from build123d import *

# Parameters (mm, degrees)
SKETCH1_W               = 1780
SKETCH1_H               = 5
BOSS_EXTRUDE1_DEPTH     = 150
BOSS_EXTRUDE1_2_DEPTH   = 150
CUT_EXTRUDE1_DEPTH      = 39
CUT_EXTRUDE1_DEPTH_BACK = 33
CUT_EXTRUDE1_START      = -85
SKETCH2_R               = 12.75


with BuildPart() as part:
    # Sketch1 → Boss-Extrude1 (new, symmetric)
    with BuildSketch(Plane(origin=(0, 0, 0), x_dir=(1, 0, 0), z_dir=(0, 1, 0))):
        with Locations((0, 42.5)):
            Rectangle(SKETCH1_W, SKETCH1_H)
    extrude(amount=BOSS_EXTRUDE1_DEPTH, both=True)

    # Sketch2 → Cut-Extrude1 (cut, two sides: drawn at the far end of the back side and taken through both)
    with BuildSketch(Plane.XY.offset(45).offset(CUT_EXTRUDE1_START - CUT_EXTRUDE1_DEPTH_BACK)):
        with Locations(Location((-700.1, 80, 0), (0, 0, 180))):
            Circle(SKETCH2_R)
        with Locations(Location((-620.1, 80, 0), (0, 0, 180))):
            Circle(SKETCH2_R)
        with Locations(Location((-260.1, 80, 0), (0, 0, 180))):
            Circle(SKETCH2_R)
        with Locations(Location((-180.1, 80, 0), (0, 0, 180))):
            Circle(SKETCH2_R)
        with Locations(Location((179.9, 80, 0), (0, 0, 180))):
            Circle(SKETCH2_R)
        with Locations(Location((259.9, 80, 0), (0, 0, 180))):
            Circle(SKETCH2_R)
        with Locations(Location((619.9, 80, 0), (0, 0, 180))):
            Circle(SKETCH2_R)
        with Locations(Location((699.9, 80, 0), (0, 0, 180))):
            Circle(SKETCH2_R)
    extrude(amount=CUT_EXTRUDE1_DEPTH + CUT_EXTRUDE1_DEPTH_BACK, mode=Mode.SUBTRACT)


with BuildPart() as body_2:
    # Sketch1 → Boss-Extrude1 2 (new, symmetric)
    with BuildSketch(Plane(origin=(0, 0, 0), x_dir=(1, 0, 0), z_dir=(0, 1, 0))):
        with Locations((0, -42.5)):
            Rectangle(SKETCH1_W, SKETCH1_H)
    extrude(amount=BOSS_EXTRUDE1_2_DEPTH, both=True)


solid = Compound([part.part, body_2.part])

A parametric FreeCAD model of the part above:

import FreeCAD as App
import Part
import Sketcher
Q = App.Units.Quantity

doc = App.newDocument("Part")
params = doc.addObject("Spreadsheet::Sheet", "Params")
for row, (alias, value) in enumerate([
    ("sketch1_width", "1780 mm"),
    ("sketch1_height", "5 mm"),
    ("pad1_length", "300 mm"),
    ("sketch2_diameter", "25.5 mm"),
    ("sketch3_width", "1780 mm"),
    ("sketch3_height", "5 mm"),
    ("pad2_length", "300 mm"),
], start=1):
    params.set(f"A{row}", alias)
    params.set(f"B{row}", "=" + value)
    params.setAlias(f"B{row}", alias)

body = doc.addObject("PartDesign::Body", "Body")

# Sketch on XZ plane
sketch1 = body.newObject("Sketcher::SketchObject", "Sketch")
sketch1.AttachmentSupport = (doc.getObject("XZ_Plane"), [""])
sketch1.MapMode = "FlatFace"
sketch1.addGeometry([
    Part.LineSegment(App.Vector(-890, -45, 0), App.Vector(-890, -40, 0)),
    Part.LineSegment(App.Vector(-890, -40, 0), App.Vector(890, -40, 0)),
    Part.LineSegment(App.Vector(890, -40, 0), App.Vector(890, -45, 0)),
    Part.LineSegment(App.Vector(890, -45, 0), App.Vector(-890, -45, 0)),
], False)
sketch1.addConstraint([
    Sketcher.Constraint("Coincident", 0, 2, 1, 1),
    Sketcher.Constraint("Coincident", 1, 2, 2, 1),
    Sketcher.Constraint("Coincident", 2, 2, 3, 1),
    Sketcher.Constraint("Coincident", 3, 2, 0, 1),
    Sketcher.Constraint("Vertical", 0),
    Sketcher.Constraint("Horizontal", 1),
    Sketcher.Constraint("Vertical", 2),
    Sketcher.Constraint("Horizontal", 3),
    Sketcher.Constraint("DistanceX", 1, 1, 1, 2, Q("1780 mm")),
    Sketcher.Constraint("DistanceY", 0, 1, 0, 2, Q("5 mm")),
    Sketcher.Constraint("DistanceX", 0, 2, -1, 1, Q("890 mm")),
    Sketcher.Constraint("DistanceY", 0, 2, -1, 1, Q("40 mm")),
])
sketch1.setExpression("Constraints[8]", "Params.sketch1_width")
sketch1.setExpression("Constraints[9]", "Params.sketch1_height")
pad1 = body.newObject("PartDesign::Pad", "Pad")
pad1.Profile = sketch1
pad1.setExpression("Length", "Params.pad1_length")
pad1.Midplane = True

# Sketch on XY plane
sketch2 = body.newObject("Sketcher::SketchObject", "Sketch001")
sketch2.AttachmentSupport = (doc.getObject("XY_Plane"), [""])
sketch2.MapMode = "FlatFace"
sketch2.AttachmentOffset = App.Placement(App.Vector(0, 0, -40), App.Rotation())
sketch2.addGeometry([
    Part.Circle(App.Vector(-700, 80, 0), App.Vector(0, 0, 1), 13),  # 0
    Part.Circle(App.Vector(-620, 80, 0), App.Vector(0, 0, 1), 13),  # 1
    Part.Circle(App.Vector(-260, 80, 0), App.Vector(0, 0, 1), 13),  # 2
    Part.Circle(App.Vector(-180, 80, 0), App.Vector(0, 0, 1), 13),  # 3
    Part.Circle(App.Vector(180, 80, 0), App.Vector(0, 0, 1), 13),  # 4
    Part.Circle(App.Vector(260, 80, 0), App.Vector(0, 0, 1), 13),  # 5
    Part.Circle(App.Vector(620, 80, 0), App.Vector(0, 0, 1), 13),  # 6
    Part.Circle(App.Vector(700, 80, 0), App.Vector(0, 0, 1), 13),  # 7
], False)
sketch2.addConstraint([
    Sketcher.Constraint("Equal", 0, 1),
    Sketcher.Constraint("Equal", 1, 2),
    Sketcher.Constraint("Equal", 2, 3),
    Sketcher.Constraint("Equal", 3, 4),
    Sketcher.Constraint("Equal", 4, 5),
    Sketcher.Constraint("Equal", 5, 6),
    Sketcher.Constraint("Equal", 6, 7),
    Sketcher.Constraint("Horizontal", 0, 3, 1, 3),
    Sketcher.Constraint("Horizontal", 1, 3, 2, 3),
    Sketcher.Constraint("Horizontal", 2, 3, 3, 3),
    Sketcher.Constraint("Horizontal", 3, 3, 4, 3),
    Sketcher.Constraint("Horizontal", 4, 3, 5, 3),
    Sketcher.Constraint("Horizontal", 5, 3, 6, 3),
    Sketcher.Constraint("Horizontal", 6, 3, 7, 3),
    Sketcher.Constraint("Diameter", 0, Q("25.5 mm")),
    Sketcher.Constraint("DistanceY", -1, 1, 0, 3, Q("80 mm")),
    Sketcher.Constraint("DistanceX", 0, 3, 1, 3, Q("80 mm")),
    Sketcher.Constraint("DistanceX", 1, 3, 2, 3, Q("360 mm")),
    Sketcher.Constraint("DistanceX", 2, 3, 3, 3, Q("80 mm")),
    Sketcher.Constraint("DistanceX", 3, 3, 4, 3, Q("360 mm")),
    Sketcher.Constraint("DistanceX", 4, 3, 5, 3, Q("80 mm")),
    Sketcher.Constraint("DistanceX", 5, 3, 6, 3, Q("360 mm")),
    Sketcher.Constraint("DistanceX", 6, 3, 7, 3, Q("80 mm")),
    Sketcher.Constraint("DistanceX", 0, 3, -1, 1, Q("700.1 mm")),
])
sketch2.setExpression("Constraints[14]", "Params.sketch2_diameter")
pocket1 = body.newObject("PartDesign::Pocket", "Pocket")
pocket1.Profile = sketch2
pocket1.Type = "ThroughAll"
pocket1.Midplane = True
body2 = doc.addObject("PartDesign::Body", "Body001")

# Sketch on XZ plane
sketch3 = body2.newObject("Sketcher::SketchObject", "Sketch002")
sketch3.AttachmentSupport = (doc.getObject("XZ_Plane001"), [""])
sketch3.MapMode = "FlatFace"
sketch3.addGeometry([
    Part.LineSegment(App.Vector(-890, 40, 0), App.Vector(-890, 45, 0)),
    Part.LineSegment(App.Vector(-890, 45, 0), App.Vector(890, 45, 0)),
    Part.LineSegment(App.Vector(890, 45, 0), App.Vector(890, 40, 0)),
    Part.LineSegment(App.Vector(890, 40, 0), App.Vector(-890, 40, 0)),
], False)
sketch3.addConstraint([
    Sketcher.Constraint("Coincident", 0, 2, 1, 1),
    Sketcher.Constraint("Coincident", 1, 2, 2, 1),
    Sketcher.Constraint("Coincident", 2, 2, 3, 1),
    Sketcher.Constraint("Coincident", 3, 2, 0, 1),
    Sketcher.Constraint("Vertical", 0),
    Sketcher.Constraint("Horizontal", 1),
    Sketcher.Constraint("Vertical", 2),
    Sketcher.Constraint("Horizontal", 3),
    Sketcher.Constraint("DistanceX", 1, 1, 1, 2, Q("1780 mm")),
    Sketcher.Constraint("DistanceY", 0, 1, 0, 2, Q("5 mm")),
    Sketcher.Constraint("DistanceX", 0, 2, -1, 1, Q("890 mm")),
    Sketcher.Constraint("DistanceY", -1, 1, 0, 2, Q("45 mm")),
])
sketch3.setExpression("Constraints[8]", "Params.sketch3_width")
sketch3.setExpression("Constraints[9]", "Params.sketch3_height")
pad2 = body2.newObject("PartDesign::Pad", "Pad001")
pad2.Profile = sketch3
pad2.setExpression("Length", "Params.pad2_length")
pad2.Midplane = True

doc.recompute()
